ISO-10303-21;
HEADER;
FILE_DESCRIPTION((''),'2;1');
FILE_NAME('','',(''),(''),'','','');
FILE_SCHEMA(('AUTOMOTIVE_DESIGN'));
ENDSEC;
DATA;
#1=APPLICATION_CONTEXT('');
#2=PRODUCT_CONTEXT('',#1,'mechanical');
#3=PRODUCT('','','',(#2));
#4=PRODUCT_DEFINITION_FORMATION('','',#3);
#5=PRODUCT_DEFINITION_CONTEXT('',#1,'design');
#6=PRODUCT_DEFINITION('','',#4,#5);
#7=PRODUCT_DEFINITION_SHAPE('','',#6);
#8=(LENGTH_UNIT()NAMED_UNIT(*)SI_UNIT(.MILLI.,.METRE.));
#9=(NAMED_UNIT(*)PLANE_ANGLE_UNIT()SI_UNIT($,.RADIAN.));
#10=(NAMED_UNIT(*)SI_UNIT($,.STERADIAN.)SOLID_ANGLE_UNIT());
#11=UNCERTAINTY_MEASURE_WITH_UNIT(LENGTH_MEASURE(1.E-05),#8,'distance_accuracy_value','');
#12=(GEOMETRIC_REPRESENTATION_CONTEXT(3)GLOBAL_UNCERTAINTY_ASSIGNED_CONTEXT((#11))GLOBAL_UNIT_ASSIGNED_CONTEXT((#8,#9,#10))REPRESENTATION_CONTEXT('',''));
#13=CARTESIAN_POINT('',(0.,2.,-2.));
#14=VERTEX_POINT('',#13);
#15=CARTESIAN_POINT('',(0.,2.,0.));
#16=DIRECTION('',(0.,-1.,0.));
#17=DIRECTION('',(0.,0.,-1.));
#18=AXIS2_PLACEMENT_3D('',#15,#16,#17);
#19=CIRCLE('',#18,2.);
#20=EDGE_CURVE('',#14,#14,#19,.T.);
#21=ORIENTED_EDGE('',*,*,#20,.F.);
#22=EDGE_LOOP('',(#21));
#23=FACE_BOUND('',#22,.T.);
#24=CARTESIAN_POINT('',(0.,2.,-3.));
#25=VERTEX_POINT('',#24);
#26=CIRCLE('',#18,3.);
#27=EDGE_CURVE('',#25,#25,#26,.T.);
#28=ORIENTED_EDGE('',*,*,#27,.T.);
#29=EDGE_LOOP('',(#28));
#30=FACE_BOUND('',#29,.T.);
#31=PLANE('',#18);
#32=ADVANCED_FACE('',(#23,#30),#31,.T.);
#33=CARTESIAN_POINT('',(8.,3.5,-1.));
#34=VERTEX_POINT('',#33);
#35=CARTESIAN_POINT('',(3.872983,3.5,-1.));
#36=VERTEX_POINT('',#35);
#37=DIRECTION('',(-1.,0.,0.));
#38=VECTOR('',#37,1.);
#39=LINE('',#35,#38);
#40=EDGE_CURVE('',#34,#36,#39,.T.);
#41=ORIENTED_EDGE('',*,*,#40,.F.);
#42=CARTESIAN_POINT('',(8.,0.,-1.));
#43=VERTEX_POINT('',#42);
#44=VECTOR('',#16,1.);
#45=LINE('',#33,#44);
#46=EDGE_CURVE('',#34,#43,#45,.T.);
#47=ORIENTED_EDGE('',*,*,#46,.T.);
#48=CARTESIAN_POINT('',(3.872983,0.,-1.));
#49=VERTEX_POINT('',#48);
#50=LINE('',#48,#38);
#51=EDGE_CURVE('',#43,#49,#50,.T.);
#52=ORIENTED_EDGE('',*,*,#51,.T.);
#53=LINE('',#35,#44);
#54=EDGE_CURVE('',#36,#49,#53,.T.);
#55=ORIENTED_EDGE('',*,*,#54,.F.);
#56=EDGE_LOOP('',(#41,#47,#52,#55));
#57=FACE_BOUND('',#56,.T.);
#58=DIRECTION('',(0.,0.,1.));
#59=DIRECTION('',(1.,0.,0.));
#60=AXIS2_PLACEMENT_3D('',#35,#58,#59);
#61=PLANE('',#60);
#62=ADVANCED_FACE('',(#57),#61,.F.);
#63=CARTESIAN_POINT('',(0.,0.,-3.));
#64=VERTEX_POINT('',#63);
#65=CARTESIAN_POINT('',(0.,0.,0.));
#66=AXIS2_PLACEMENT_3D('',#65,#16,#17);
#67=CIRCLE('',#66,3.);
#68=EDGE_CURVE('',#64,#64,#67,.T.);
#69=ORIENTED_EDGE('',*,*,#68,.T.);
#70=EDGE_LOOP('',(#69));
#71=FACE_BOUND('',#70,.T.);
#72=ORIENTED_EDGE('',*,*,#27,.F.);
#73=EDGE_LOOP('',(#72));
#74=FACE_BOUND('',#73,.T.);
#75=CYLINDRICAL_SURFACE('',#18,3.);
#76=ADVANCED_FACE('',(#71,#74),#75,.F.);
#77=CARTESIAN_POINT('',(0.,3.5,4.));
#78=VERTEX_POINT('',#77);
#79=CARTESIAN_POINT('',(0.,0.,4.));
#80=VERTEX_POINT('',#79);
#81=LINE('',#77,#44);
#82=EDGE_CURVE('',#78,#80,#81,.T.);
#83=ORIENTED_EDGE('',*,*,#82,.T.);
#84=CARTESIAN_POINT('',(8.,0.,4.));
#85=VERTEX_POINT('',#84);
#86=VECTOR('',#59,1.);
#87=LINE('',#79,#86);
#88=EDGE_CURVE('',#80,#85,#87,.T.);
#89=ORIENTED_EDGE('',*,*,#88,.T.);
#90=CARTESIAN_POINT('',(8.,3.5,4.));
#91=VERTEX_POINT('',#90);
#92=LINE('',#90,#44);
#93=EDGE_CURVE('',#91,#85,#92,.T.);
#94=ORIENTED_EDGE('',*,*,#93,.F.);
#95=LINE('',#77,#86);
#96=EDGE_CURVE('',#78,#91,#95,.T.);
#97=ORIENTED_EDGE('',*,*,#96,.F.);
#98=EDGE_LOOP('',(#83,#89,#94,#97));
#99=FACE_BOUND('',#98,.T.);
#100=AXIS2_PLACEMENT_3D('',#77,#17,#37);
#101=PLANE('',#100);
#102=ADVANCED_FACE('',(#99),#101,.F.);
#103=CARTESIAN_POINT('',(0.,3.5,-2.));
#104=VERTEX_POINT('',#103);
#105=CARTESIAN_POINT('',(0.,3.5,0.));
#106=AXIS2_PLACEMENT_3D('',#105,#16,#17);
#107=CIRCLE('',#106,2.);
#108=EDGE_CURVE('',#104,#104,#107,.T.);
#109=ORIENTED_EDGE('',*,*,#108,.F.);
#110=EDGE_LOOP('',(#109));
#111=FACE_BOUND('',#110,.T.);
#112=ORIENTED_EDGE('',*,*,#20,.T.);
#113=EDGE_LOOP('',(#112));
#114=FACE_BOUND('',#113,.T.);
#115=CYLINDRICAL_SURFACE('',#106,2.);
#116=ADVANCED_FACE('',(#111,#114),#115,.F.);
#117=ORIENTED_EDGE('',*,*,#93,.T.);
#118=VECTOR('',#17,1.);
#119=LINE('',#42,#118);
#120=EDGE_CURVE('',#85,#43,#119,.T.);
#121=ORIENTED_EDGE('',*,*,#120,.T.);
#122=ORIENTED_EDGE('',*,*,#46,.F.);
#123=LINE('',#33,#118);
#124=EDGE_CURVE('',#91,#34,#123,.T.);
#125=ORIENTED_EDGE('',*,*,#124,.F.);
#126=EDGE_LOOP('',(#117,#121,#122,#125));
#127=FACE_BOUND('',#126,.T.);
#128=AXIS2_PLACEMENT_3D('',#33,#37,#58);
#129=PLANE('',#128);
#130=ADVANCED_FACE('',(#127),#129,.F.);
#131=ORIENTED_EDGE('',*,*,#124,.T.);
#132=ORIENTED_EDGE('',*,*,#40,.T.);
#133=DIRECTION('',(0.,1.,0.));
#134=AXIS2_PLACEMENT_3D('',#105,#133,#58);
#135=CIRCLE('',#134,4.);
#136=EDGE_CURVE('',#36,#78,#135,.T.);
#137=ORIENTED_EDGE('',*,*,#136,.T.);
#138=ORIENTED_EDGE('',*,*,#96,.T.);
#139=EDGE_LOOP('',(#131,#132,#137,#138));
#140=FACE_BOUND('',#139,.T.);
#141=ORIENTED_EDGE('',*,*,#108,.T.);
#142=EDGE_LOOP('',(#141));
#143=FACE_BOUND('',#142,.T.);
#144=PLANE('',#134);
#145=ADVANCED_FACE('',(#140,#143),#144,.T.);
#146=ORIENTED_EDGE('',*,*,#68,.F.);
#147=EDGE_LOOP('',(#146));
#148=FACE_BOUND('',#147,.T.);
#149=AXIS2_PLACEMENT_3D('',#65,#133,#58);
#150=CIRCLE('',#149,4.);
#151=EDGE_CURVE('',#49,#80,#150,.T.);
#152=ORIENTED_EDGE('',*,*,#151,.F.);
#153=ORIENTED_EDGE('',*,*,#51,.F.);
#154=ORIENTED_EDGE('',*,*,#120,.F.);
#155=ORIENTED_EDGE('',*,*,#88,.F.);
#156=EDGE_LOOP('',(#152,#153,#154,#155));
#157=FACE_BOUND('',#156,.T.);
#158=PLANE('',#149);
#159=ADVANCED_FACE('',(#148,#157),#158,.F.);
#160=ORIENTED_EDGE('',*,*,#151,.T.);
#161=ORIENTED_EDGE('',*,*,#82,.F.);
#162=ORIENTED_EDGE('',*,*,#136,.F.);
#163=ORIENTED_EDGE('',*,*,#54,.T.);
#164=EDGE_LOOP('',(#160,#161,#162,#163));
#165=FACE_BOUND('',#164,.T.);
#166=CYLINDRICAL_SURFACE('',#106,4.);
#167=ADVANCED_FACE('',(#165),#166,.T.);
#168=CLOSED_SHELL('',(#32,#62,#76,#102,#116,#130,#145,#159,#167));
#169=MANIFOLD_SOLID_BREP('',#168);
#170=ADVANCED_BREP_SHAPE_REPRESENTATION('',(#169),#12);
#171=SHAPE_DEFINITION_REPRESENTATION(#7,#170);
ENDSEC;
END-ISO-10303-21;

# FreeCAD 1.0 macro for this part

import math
import FreeCAD as App
import Part
import Sketcher

doc = App.newDocument("Part")
body = doc.addObject("PartDesign::Body", "Body")

sketch1 = body.newObject("Sketcher::SketchObject", "Sketch")
sketch1.AttachmentSupport = (doc.getObject("XZ_Plane"), [""])
sketch1.MapMode = "FlatFace"
sketch1.addGeometry([
    Part.LineSegment(App.Vector(0, 4, 0), App.Vector(8, 4, 0)),
    Part.LineSegment(App.Vector(8, 4, 0), App.Vector(8, -1, 0)),
    Part.LineSegment(App.Vector(8, -1, 0), App.Vector(3.9, -1, 0)),
    Part.ArcOfCircle(Part.Circle(App.Vector(0, 0, 0), App.Vector(0, 0, 1), 4), math.radians(90), math.radians(346)),
], False)
sketch1.addConstraint([
    Sketcher.Constraint("Coincident", 0, 2, 1, 1),
    Sketcher.Constraint("Coincident", 1, 2, 2, 1),
    Sketcher.Constraint("Coincident", 2, 2, 3, 2),
    Sketcher.Constraint("Tangent", 3, 1, 0, 1),
    Sketcher.Constraint("Horizontal", 0),
    Sketcher.Constraint("Vertical", 1),
    Sketcher.Constraint("Horizontal", 2),
    Sketcher.Constraint("Coincident", 3, 3, -1, 1),
    Sketcher.Constraint("Radius", 3, 4.0),
    Sketcher.Constraint("DistanceX", 0, 1, 0, 2, 8.0),
    Sketcher.Constraint("DistanceY", 1, 2, 1, 1, 5.0),
])
pad1 = body.newObject("PartDesign::Pad", "Pad")
pad1.Profile = sketch1
pad1.Length = 3.5
pad1.Reversed = True

sketch2 = body.newObject("Sketcher::SketchObject", "Sketch001")
sketch2.AttachmentSupport = (doc.getObject("XZ_Plane"), [""])
sketch2.MapMode = "FlatFace"
sketch2.addGeometry(Part.Circle(App.Vector(0, 0, 0), App.Vector(0, 0, 1), 3), False)
sketch2.addConstraint([
    Sketcher.Constraint("Coincident", 0, 3, -1, 1),
    Sketcher.Constraint("Diameter", 0, 6.0),
])
pocket1 = body.newObject("PartDesign::Pocket", "Pocket")
pocket1.Profile = sketch2
pocket1.Length = 2

sketch3 = body.newObject("Sketcher::SketchObject", "Sketch002")
sketch3.AttachmentSupport = (doc.getObject("XZ_Plane"), [""])
sketch3.MapMode = "FlatFace"
sketch3.AttachmentOffset = App.Placement(App.Vector(0, 0, -2), App.Rotation())
sketch3.addGeometry(Part.Circle(App.Vector(0, 0, 0), App.Vector(0, 0, 1), 2), False)
sketch3.addConstraint([
    Sketcher.Constraint("Coincident", 0, 3, -1, 1),
    Sketcher.Constraint("Diameter", 0, 4.0),
])
pocket2 = body.newObject("PartDesign::Pocket", "Pocket001")
pocket2.Profile = sketch3
pocket2.Type = "ThroughAll"

doc.recompute()
